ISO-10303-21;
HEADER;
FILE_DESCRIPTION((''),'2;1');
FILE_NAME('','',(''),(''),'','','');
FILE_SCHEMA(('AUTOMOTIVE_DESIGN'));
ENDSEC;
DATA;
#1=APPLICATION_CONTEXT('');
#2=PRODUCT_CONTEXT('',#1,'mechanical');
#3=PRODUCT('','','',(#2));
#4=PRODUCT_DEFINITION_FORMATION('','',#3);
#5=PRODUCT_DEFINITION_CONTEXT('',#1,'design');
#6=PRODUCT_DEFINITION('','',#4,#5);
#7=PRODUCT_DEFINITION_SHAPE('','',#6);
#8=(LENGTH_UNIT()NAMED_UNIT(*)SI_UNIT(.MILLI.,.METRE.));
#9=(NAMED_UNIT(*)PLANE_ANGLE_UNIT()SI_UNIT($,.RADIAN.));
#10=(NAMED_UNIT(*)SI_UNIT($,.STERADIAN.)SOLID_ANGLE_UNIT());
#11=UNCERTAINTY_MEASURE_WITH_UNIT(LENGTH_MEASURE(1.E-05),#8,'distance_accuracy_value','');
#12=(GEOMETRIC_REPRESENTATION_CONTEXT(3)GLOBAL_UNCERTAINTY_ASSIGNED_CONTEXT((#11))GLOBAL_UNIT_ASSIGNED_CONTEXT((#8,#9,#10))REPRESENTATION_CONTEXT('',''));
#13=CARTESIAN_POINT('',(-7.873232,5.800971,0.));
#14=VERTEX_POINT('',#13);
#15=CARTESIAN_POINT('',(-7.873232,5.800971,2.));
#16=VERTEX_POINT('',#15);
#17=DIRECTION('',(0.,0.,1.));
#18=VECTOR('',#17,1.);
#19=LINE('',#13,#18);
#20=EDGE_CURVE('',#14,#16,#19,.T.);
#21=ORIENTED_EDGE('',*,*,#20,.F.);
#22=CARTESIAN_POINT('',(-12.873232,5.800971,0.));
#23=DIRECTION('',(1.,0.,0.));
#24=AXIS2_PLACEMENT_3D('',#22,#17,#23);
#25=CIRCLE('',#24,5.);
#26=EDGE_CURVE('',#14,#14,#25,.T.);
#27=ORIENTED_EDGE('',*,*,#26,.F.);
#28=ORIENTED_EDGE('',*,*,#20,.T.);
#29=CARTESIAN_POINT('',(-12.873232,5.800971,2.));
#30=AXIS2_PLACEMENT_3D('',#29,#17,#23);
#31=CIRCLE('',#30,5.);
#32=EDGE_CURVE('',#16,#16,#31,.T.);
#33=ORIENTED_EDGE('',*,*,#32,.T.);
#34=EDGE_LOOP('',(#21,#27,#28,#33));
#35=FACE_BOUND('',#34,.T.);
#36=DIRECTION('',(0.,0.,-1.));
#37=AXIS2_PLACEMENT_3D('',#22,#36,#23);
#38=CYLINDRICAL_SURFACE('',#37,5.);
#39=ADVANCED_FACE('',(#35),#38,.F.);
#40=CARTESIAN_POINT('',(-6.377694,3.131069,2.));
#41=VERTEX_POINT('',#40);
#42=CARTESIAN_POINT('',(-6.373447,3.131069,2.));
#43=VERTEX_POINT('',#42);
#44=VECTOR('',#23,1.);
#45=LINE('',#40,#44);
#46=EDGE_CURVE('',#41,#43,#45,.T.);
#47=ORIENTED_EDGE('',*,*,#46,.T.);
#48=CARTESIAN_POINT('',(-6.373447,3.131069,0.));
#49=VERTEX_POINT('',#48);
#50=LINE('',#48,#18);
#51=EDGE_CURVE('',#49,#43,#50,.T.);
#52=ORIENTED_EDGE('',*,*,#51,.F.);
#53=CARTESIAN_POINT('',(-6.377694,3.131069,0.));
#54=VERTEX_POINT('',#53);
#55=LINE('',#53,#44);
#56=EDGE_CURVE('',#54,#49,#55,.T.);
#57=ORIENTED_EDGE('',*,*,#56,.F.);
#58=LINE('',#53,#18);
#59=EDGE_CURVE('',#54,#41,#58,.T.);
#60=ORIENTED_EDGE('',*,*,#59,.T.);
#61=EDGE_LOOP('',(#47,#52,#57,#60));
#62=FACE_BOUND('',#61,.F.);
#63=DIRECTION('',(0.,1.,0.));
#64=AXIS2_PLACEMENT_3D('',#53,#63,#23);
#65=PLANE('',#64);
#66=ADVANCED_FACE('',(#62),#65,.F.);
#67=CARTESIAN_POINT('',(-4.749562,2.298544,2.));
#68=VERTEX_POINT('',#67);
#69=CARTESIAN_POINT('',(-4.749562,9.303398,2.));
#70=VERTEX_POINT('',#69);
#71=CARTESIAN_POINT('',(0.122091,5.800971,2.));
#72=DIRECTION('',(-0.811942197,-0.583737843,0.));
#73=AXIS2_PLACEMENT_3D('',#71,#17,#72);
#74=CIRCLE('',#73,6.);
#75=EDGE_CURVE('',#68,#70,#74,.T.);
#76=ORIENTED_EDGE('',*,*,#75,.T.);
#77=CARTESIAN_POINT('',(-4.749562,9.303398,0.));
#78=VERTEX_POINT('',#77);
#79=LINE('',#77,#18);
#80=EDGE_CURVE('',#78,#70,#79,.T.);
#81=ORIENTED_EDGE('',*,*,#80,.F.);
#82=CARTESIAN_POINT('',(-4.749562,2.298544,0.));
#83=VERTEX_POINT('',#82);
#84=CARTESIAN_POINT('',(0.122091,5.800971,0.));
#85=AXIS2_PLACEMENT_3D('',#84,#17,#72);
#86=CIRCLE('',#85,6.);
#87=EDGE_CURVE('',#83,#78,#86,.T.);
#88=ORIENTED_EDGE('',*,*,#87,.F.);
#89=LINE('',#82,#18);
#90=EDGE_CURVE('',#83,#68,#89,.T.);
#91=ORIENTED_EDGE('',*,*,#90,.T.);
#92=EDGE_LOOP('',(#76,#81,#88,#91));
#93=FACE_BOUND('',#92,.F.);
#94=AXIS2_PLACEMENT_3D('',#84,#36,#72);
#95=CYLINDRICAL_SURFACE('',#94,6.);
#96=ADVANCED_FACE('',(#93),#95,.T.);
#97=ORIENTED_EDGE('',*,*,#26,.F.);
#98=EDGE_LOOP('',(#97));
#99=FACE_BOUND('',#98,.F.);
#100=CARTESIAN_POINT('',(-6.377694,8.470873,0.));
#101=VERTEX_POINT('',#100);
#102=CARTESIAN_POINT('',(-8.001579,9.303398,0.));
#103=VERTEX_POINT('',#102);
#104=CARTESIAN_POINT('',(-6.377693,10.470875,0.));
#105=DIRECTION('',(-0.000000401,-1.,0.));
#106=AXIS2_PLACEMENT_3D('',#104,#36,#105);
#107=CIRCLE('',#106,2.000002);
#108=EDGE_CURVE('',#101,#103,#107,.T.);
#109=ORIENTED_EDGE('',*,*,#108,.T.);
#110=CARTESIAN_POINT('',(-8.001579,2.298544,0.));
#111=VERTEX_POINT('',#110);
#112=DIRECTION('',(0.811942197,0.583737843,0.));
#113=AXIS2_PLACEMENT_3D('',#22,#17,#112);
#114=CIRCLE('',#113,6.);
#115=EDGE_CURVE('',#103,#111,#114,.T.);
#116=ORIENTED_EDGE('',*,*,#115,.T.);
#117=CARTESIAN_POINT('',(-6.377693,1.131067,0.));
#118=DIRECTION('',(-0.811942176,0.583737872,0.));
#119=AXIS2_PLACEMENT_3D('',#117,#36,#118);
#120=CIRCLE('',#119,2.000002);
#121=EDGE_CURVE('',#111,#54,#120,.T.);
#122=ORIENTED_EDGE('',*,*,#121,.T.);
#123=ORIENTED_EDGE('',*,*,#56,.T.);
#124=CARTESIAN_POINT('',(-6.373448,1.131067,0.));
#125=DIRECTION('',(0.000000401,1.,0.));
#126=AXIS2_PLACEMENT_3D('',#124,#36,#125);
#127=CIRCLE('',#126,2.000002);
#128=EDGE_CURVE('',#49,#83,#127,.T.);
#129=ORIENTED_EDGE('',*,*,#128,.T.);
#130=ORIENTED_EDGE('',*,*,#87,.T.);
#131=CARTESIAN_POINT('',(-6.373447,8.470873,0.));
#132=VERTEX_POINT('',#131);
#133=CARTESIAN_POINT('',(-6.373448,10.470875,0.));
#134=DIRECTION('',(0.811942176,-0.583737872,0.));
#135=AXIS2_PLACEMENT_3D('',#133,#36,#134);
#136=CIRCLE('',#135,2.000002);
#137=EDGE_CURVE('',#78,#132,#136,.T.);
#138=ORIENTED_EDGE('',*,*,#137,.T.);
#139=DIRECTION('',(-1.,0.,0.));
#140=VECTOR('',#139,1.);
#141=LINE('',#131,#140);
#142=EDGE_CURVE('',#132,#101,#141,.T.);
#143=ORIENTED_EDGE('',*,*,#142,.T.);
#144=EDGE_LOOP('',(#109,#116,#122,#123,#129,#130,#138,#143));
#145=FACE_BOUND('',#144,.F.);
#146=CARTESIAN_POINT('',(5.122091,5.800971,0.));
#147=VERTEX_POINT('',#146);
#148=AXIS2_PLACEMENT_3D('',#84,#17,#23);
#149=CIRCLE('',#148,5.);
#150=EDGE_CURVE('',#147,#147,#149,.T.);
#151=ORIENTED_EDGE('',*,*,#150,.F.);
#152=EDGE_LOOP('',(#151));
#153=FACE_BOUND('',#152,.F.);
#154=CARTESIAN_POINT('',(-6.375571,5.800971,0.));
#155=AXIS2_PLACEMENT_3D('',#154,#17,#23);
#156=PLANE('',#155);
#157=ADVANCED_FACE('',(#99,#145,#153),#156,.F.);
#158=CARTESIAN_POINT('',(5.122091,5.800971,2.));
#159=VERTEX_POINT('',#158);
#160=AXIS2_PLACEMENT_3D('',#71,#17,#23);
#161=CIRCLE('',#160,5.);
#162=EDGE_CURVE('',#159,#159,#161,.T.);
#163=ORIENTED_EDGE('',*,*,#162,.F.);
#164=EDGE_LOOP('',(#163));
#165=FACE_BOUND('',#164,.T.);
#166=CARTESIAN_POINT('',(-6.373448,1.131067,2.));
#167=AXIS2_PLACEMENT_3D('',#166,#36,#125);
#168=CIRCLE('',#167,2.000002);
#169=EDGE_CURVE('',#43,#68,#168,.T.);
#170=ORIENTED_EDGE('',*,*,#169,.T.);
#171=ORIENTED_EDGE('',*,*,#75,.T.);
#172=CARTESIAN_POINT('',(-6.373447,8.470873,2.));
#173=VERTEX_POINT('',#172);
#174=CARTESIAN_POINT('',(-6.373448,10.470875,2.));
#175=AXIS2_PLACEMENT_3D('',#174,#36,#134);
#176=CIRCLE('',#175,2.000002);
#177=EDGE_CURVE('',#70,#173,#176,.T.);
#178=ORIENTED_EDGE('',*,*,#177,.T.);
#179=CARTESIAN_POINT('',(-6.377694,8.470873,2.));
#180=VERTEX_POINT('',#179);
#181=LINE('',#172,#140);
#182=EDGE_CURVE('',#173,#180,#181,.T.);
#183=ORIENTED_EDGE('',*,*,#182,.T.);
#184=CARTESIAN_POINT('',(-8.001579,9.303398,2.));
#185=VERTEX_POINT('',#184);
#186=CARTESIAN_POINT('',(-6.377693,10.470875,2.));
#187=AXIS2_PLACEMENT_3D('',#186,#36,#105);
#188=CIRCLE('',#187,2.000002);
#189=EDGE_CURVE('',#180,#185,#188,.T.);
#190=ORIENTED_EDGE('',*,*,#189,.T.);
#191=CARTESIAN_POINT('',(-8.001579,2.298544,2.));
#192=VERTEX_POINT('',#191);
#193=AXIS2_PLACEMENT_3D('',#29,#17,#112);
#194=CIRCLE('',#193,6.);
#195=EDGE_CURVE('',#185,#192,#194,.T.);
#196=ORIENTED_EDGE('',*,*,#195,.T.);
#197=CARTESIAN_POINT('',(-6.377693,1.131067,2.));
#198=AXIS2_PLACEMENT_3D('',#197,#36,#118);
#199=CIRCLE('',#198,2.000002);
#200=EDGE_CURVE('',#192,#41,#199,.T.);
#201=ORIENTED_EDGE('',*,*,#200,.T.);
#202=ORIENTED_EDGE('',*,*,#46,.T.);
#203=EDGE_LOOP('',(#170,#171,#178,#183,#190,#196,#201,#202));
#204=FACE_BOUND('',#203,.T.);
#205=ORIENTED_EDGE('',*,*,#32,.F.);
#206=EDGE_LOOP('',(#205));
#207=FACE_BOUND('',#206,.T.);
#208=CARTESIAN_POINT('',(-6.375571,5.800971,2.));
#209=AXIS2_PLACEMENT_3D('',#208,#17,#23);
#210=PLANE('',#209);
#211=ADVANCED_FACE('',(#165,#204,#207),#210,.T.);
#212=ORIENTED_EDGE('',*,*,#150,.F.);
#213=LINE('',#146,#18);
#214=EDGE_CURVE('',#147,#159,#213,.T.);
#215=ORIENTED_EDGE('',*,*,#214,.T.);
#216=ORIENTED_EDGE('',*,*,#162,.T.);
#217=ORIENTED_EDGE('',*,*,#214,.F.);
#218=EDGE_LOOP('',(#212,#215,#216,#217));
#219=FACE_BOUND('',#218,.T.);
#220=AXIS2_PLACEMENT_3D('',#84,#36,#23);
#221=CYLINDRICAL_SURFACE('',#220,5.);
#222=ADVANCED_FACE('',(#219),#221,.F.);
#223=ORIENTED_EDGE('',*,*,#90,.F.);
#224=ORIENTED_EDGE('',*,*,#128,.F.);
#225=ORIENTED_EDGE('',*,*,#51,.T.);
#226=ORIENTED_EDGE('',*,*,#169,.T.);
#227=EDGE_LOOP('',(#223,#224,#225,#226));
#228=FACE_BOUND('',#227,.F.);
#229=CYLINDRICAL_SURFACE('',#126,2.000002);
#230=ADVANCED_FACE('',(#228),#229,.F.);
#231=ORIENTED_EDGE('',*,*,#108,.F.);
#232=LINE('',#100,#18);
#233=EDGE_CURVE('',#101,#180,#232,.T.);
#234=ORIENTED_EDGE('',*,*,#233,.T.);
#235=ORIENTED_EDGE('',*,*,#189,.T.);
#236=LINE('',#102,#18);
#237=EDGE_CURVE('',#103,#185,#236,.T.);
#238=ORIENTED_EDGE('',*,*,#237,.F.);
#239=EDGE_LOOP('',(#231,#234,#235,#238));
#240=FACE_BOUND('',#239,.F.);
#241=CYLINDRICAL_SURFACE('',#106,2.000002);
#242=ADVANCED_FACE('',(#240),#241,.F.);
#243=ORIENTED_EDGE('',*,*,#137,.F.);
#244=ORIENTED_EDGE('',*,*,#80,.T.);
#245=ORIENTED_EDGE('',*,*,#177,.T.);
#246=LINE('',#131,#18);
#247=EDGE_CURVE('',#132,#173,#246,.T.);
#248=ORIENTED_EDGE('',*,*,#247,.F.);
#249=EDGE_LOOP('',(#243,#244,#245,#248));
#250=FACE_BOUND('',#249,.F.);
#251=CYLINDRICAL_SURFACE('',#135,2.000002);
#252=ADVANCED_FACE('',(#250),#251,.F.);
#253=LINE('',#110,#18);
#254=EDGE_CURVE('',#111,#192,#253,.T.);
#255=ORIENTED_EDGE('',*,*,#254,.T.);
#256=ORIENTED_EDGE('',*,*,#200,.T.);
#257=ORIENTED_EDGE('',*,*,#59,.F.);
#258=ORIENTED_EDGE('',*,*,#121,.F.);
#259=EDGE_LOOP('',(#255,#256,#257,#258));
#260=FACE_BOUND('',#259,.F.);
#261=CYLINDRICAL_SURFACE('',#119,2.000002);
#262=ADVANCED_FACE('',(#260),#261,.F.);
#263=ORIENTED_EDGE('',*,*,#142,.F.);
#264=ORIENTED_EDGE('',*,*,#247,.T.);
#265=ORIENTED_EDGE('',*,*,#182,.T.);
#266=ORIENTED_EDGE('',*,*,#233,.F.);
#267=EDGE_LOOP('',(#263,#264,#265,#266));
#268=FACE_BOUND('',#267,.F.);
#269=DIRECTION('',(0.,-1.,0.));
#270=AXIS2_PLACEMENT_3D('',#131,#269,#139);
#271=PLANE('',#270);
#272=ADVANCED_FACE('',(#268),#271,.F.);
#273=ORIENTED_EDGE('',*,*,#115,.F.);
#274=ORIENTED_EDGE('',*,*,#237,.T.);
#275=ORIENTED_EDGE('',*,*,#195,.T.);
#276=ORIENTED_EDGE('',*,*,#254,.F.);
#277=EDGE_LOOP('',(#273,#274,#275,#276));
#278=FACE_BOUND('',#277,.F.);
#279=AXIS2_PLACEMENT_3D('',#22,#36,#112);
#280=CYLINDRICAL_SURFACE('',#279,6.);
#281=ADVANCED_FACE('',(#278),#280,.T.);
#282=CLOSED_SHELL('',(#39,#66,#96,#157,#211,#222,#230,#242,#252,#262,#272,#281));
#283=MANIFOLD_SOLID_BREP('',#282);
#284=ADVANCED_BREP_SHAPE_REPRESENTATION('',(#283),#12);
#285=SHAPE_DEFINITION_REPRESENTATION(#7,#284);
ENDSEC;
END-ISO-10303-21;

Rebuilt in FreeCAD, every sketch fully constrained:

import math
import FreeCAD as App
import Part
import Sketcher
Q = App.Units.Quantity

doc = App.newDocument("Part")
body = doc.addObject("PartDesign::Body", "Body")

# Sketch on XY plane
sketch1 = body.newObject("Sketcher::SketchObject", "Sketch")
sketch1.AttachmentSupport = (doc.getObject("XY_Plane"), [""])
sketch1.MapMode = "FlatFace"
sketch1.addGeometry([
    Part.ArcOfCircle(Part.Circle(App.Vector(-6.3777, 10.4709, 0), App.Vector(0, 0, 1), 2), math.radians(-144), math.radians(-90)),  # 0
    Part.ArcOfCircle(Part.Circle(App.Vector(-12.8732, 5.801, 0), App.Vector(0, 0, 1), 6), math.radians(36), math.radians(324)),  # 1
    Part.ArcOfCircle(Part.Circle(App.Vector(-6.3777, 1.1311, 0), App.Vector(0, 0, 1), 2), math.radians(90), math.radians(144)),  # 2
    Part.LineSegment(App.Vector(-6.3777, 3.1311, 0), App.Vector(-6.3734, 3.1311, 0)),  # 3
    Part.ArcOfCircle(Part.Circle(App.Vector(-6.3734, 1.1311, 0), App.Vector(0, 0, 1), 2), math.radians(36), math.radians(90)),  # 4
    Part.ArcOfCircle(Part.Circle(App.Vector(0.1221, 5.801, 0), App.Vector(0, 0, 1), 6), math.radians(-144), math.radians(144)),  # 5
    Part.ArcOfCircle(Part.Circle(App.Vector(-6.3734, 10.4709, 0), App.Vector(0, 0, 1), 2), math.radians(-90), math.radians(-36)),  # 6
    Part.LineSegment(App.Vector(-6.3734, 8.4709, 0), App.Vector(-6.3777, 8.4709, 0)),  # 7
    Part.Circle(App.Vector(-12.8732, 5.801, 0), App.Vector(0, 0, 1), 5),  # 8
    Part.Circle(App.Vector(0.1221, 5.801, 0), App.Vector(0, 0, 1), 5),  # 9
], False)
sketch1.addConstraint([
    Sketcher.Constraint("Tangent", 0, 1, 1, 1),
    Sketcher.Constraint("Tangent", 1, 2, 2, 2),
    Sketcher.Constraint("Tangent", 2, 1, 3, 1),
    Sketcher.Constraint("Tangent", 3, 2, 4, 2),
    Sketcher.Constraint("Tangent", 4, 1, 5, 1),
    Sketcher.Constraint("Tangent", 5, 2, 6, 2),
    Sketcher.Constraint("Tangent", 6, 1, 7, 1),
    Sketcher.Constraint("Tangent", 7, 2, 0, 2),
    Sketcher.Constraint("Coincident", 8, 3, 1, 3),
    Sketcher.Constraint("Coincident", 9, 3, 5, 3),
    Sketcher.Constraint("Equal", 0, 2),
    Sketcher.Constraint("Equal", 2, 4),
    Sketcher.Constraint("Equal", 1, 5),
    Sketcher.Constraint("Equal", 4, 6),
    Sketcher.Constraint("Equal", 8, 9),
    Sketcher.Constraint("Horizontal", 1, 3, 5, 3),
    Sketcher.Constraint("Vertical", 0, 3, 2, 3),
    Sketcher.Constraint("Vertical", 0, 3, 2, 1),
    Sketcher.Constraint("Vertical", 3, 2, 6, 1),
    Sketcher.Constraint("Diameter", 8, Q("10 mm")),
    Sketcher.Constraint("Radius", 0, Q("2.000002 mm")),
    Sketcher.Constraint("Radius", 1, Q("6 mm")),
    Sketcher.Constraint("DistanceY", -1, 1, 5, 2, Q("9.303398 mm")),
    Sketcher.Constraint("DistanceX", 3, 1, 3, 2, Q("0.004247 mm")),
    Sketcher.Constraint("DistanceY", -1, 1, 1, 3, Q("5.800971 mm")),
    Sketcher.Constraint("DistanceX", -1, 1, 5, 3, Q("0.122091 mm")),
])
pad1 = body.newObject("PartDesign::Pad", "Pad")
pad1.Profile = sketch1
pad1.Length = 2

doc.recompute()
